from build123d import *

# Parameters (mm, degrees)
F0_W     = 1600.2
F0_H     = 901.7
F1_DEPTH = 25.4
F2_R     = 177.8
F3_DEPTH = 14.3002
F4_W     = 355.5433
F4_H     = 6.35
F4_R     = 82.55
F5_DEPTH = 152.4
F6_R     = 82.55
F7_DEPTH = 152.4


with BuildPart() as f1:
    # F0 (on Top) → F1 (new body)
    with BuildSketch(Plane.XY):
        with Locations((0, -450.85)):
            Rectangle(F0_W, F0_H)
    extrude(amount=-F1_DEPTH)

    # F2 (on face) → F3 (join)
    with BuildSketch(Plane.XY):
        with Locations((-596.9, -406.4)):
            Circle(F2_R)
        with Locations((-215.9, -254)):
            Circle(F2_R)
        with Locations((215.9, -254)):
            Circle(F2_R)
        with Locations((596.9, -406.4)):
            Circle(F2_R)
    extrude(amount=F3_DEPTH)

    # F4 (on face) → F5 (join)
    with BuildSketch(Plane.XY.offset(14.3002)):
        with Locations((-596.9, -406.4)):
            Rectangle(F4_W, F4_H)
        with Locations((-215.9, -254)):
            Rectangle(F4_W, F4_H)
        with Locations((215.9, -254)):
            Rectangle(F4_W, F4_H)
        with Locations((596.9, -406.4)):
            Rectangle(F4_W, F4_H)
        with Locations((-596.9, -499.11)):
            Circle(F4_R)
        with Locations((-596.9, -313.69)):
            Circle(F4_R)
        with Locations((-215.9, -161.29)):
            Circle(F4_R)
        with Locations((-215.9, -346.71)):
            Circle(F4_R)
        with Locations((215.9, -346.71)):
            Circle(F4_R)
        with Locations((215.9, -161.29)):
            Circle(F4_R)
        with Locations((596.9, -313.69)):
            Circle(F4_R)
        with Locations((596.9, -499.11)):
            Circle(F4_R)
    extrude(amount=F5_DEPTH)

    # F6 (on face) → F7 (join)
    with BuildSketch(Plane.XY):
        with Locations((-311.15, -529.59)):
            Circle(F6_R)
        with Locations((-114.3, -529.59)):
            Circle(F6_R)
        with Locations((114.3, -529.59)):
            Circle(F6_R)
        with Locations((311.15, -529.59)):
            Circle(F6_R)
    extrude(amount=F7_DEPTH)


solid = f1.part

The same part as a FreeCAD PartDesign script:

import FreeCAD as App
import Part
import Sketcher
from FreeCAD import Vector
Q = App.Units.Quantity

doc = App.newDocument("Part")
body = doc.addObject("PartDesign::Body", "Body")

# Sketch on XY plane
sketch1 = body.newObject("Sketcher::SketchObject", "Sketch")
sketch1.AttachmentSupport = (doc.getObject("XY_Plane"), [""])
sketch1.MapMode = "FlatFace"
sketch1.addGeometry(Part.LineSegment(Vector(-800, 0, 0), Vector(-800, -902, 0)), False)
sketch1.addGeometry(Part.LineSegment(Vector(-800, -902, 0), Vector(800, -902, 0)), False)
sketch1.addGeometry(Part.LineSegment(Vector(800, -902, 0), Vector(800, 0, 0)), False)
sketch1.addGeometry(Part.LineSegment(Vector(800, 0, 0), Vector(-800, 0, 0)), False)
sketch1.addConstraint(Sketcher.Constraint("Coincident", 0, 2, 1, 1))
sketch1.addConstraint(Sketcher.Constraint("Coincident", 1, 2, 2, 1))
sketch1.addConstraint(Sketcher.Constraint("Coincident", 2, 2, 3, 1))
sketch1.addConstraint(Sketcher.Constraint("Coincident", 3, 2, 0, 1))
sketch1.addConstraint(Sketcher.Constraint("Vertical", 0))
sketch1.addConstraint(Sketcher.Constraint("Horizontal", 1))
sketch1.addConstraint(Sketcher.Constraint("Vertical", 2))
sketch1.addConstraint(Sketcher.Constraint("Horizontal", 3))
sketch1.addConstraint(Sketcher.Constraint("Symmetric", 2, 2, 3, 2, -1, 1))
sketch1.addConstraint(Sketcher.Constraint("DistanceX", 1, 1, 1, 2, Q("63 in")))
sketch1.addConstraint(Sketcher.Constraint("DistanceY", 0, 2, 0, 1, Q("35.5 in")))
pad1 = body.newObject("PartDesign::Pad", "Pad")
pad1.Profile = sketch1
pad1.Length = Q("1 in")
pad1.Reversed = True

# Sketch on XY plane
sketch2 = body.newObject("Sketcher::SketchObject", "Sketch001")
sketch2.AttachmentSupport = (doc.getObject("XY_Plane"), [""])
sketch2.MapMode = "FlatFace"
sketch2.addGeometry(Part.Circle(Vector(-597, -406, 0), Vector(0, 0, 1), 178), False)
sketch2.addGeometry(Part.Circle(Vector(-216, -254, 0), Vector(0, 0, 1), 178), False)
sketch2.addGeometry(Part.Circle(Vector(216, -254, 0), Vector(0, 0, 1), 178), False)
sketch2.addGeometry(Part.Circle(Vector(597, -406, 0), Vector(0, 0, 1), 178), False)
sketch2.addConstraint(Sketcher.Constraint("Equal", 0, 1))
sketch2.addConstraint(Sketcher.Constraint("Equal", 1, 2))
sketch2.addConstraint(Sketcher.Constraint("Equal", 2, 3))
sketch2.addConstraint(Sketcher.Constraint("Symmetric", 1, 3, 2, 3, -2))
sketch2.addConstraint(Sketcher.Constraint("Symmetric", 0, 3, 3, 3, -2))
sketch2.addConstraint(Sketcher.Constraint("Diameter", 0, Q("14 in")))
sketch2.addConstraint(Sketcher.Constraint("DistanceY", 0, 3, -1, 1, Q("16 in")))
sketch2.addConstraint(Sketcher.Constraint("DistanceY", 1, 3, -1, 1, Q("10 in")))
sketch2.addConstraint(Sketcher.Constraint("DistanceX", 0, 3, 1, 3, Q("15 in")))
sketch2.addConstraint(Sketcher.Constraint("DistanceX", 1, 3, 2, 3, Q("17 in")))
pad2 = body.newObject("PartDesign::Pad", "Pad001")
pad2.Profile = sketch2
pad2.Length = Q("0.563 in")

# Sketch on XY plane
sketch3 = body.newObject("Sketcher::SketchObject", "Sketch002")
sketch3.AttachmentSupport = (doc.getObject("XY_Plane"), [""])
sketch3.MapMode = "FlatFace"
sketch3.AttachmentOffset = App.Placement(Vector(0, 0, 0.563 * 25.4), App.Rotation())
sketch3.addGeometry(Part.LineSegment(Vector(-775, -403, 0), Vector(-775, -410, 0)), False)
sketch3.addGeometry(Part.LineSegment(Vector(-775, -410, 0), Vector(-419, -410, 0)), False)
sketch3.addGeometry(Part.LineSegment(Vector(-419, -410, 0), Vector(-419, -403, 0)), False)
sketch3.addGeometry(Part.LineSegment(Vector(-419, -403, 0), Vector(-775, -403, 0)), False)
sketch3.addGeometry(Part.LineSegment(Vector(-394, -251, 0), Vector(-394, -257, 0)), False)
sketch3.addGeometry(Part.LineSegment(Vector(-394, -257, 0), Vector(-38, -257, 0)), False)
sketch3.addGeometry(Part.LineSegment(Vector(-38, -257, 0), Vector(-38, -251, 0)), False)
sketch3.addGeometry(Part.LineSegment(Vector(-38, -251, 0), Vector(-394, -251, 0)), False)
sketch3.addGeometry(Part.LineSegment(Vector(38, -251, 0), Vector(38, -257, 0)), False)
sketch3.addGeometry(Part.LineSegment(Vector(38, -257, 0), Vector(394, -257, 0)), False)
sketch3.addGeometry(Part.LineSegment(Vector(394, -257, 0), Vector(394, -251, 0)), False)
sketch3.addGeometry(Part.LineSegment(Vector(394, -251, 0), Vector(38, -251, 0)), False)
sketch3.addGeometry(Part.LineSegment(Vector(419, -403, 0), Vector(419, -410, 0)), False)
sketch3.addGeometry(Part.LineSegment(Vector(419, -410, 0), Vector(775, -410, 0)), False)
sketch3.addGeometry(Part.LineSegment(Vector(775, -410, 0), Vector(775, -403, 0)), False)
sketch3.addGeometry(Part.LineSegment(Vector(775, -403, 0), Vector(419, -403, 0)), False)
sketch3.addGeometry(Part.Circle(Vector(-597, -499, 0), Vector(0, 0, 1), 83), False)
sketch3.addGeometry(Part.Circle(Vector(-597, -314, 0), Vector(0, 0, 1), 83), False)
sketch3.addGeometry(Part.Circle(Vector(-216, -161, 0), Vector(0, 0, 1), 83), False)
sketch3.addGeometry(Part.Circle(Vector(-216, -347, 0), Vector(0, 0, 1), 83), False)
sketch3.addGeometry(Part.Circle(Vector(216, -347, 0), Vector(0, 0, 1), 83), False)
sketch3.addGeometry(Part.Circle(Vector(216, -161, 0), Vector(0, 0, 1), 83), False)
sketch3.addGeometry(Part.Circle(Vector(597, -314, 0), Vector(0, 0, 1), 83), False)
sketch3.addGeometry(Part.Circle(Vector(597, -499, 0), Vector(0, 0, 1), 83), False)
sketch3.addConstraint(Sketcher.Constraint("Coincident", 0, 2, 1, 1))
sketch3.addConstraint(Sketcher.Constraint("Coincident", 1, 2, 2, 1))
sketch3.addConstraint(Sketcher.Constraint("Coincident", 2, 2, 3, 1))
sketch3.addConstraint(Sketcher.Constraint("Coincident", 3, 2, 0, 1))
sketch3.addConstraint(Sketcher.Constraint("Coincident", 4, 2, 5, 1))
sketch3.addConstraint(Sketcher.Constraint("Coincident", 5, 2, 6, 1))
sketch3.addConstraint(Sketcher.Constraint("Coincident", 6, 2, 7, 1))
sketch3.addConstraint(Sketcher.Constraint("Coincident", 7, 2, 4, 1))
sketch3.addConstraint(Sketcher.Constraint("Coincident", 8, 2, 9, 1))
sketch3.addConstraint(Sketcher.Constraint("Coincident", 9, 2, 10, 1))
sketch3.addConstraint(Sketcher.Constraint("Coincident", 10, 2, 11, 1))
sketch3.addConstraint(Sketcher.Constraint("Coincident", 11, 2, 8, 1))
sketch3.addConstraint(Sketcher.Constraint("Coincident", 12, 2, 13, 1))
sketch3.addConstraint(Sketcher.Constraint("Coincident", 13, 2, 14, 1))
sketch3.addConstraint(Sketcher.Constraint("Coincident", 14, 2, 15, 1))
sketch3.addConstraint(Sketcher.Constraint("Coincident", 15, 2, 12, 1))
sketch3.addConstraint(Sketcher.Constraint("Vertical", 0))
sketch3.addConstraint(Sketcher.Constraint("Horizontal", 1))
sketch3.addConstraint(Sketcher.Constraint("Vertical", 2))
sketch3.addConstraint(Sketcher.Constraint("Horizontal", 3))
sketch3.addConstraint(Sketcher.Constraint("Vertical", 4))
sketch3.addConstraint(Sketcher.Constraint("Horizontal", 5))
sketch3.addConstraint(Sketcher.Constraint("Vertical", 6))
sketch3.addConstraint(Sketcher.Constraint("Horizontal", 7))
sketch3.addConstraint(Sketcher.Constraint("Vertical", 8))
sketch3.addConstraint(Sketcher.Constraint("Horizontal", 9))
sketch3.addConstraint(Sketcher.Constraint("Vertical", 10))
sketch3.addConstraint(Sketcher.Constraint("Horizontal", 11))
sketch3.addConstraint(Sketcher.Constraint("Vertical", 12))
sketch3.addConstraint(Sketcher.Constraint("Horizontal", 13))
sketch3.addConstraint(Sketcher.Constraint("Vertical", 14))
sketch3.addConstraint(Sketcher.Constraint("Horizontal", 15))
sketch3.addConstraint(Sketcher.Constraint("Equal", 16, 17))
sketch3.addConstraint(Sketcher.Constraint("Equal", 17, 18))
sketch3.addConstraint(Sketcher.Constraint("Equal", 18, 19))
sketch3.addConstraint(Sketcher.Constraint("Equal", 19, 20))
sketch3.addConstraint(Sketcher.Constraint("Equal", 20, 21))
sketch3.addConstraint(Sketcher.Constraint("Equal", 21, 22))
sketch3.addConstraint(Sketcher.Constraint("Equal", 22, 23))
sketch3.addConstraint(Sketcher.Constraint("Symmetric", 19, 3, 20, 3, -2))
sketch3.addConstraint(Sketcher.Constraint("Symmetric", 18, 3, 21, 3, -2))
sketch3.addConstraint(Sketcher.Constraint("Symmetric", 17, 3, 22, 3, -2))
sketch3.addConstraint(Sketcher.Constraint("Symmetric", 16, 3, 23, 3, -2))
sketch3.addConstraint(Sketcher.Constraint("Symmetric", 5, 2, 8, 2, -2))
sketch3.addConstraint(Sketcher.Constraint("Symmetric", 7, 2, 10, 2, -2))
sketch3.addConstraint(Sketcher.Constraint("Symmetric", 1, 2, 12, 2, -2))
sketch3.addConstraint(Sketcher.Constraint("Symmetric", 3, 2, 14, 2, -2))
sketch3.addConstraint(Sketcher.Constraint("Vertical", 16, 3, 17, 3))
sketch3.addConstraint(Sketcher.Constraint("Vertical", 18, 3, 19, 3))
sketch3.addConstraint(Sketcher.Constraint("Equal", 3, 5))
sketch3.addConstraint(Sketcher.Constraint("Equal", 2, 4))
sketch3.addConstraint(Sketcher.Constraint("Diameter", 16, Q("6.5 in")))
sketch3.addConstraint(Sketcher.Constraint("DistanceX", 17, 3, 18, 3, Q("15 in")))
sketch3.addConstraint(Sketcher.Constraint("DistanceY", 17, 3, 18, 3, Q("6 in")))
sketch3.addConstraint(Sketcher.Constraint("DistanceY", 16, 3, 19, 3, Q("6 in")))
sketch3.addConstraint(Sketcher.Constraint("DistanceX", 19, 3, 20, 3, Q("17 in")))
sketch3.addConstraint(Sketcher.Constraint("DistanceY", 1, 2, 4, 2, Q("6 in")))
sketch3.addConstraint(Sketcher.Constraint("DistanceX", 9, 2, 13, 2, Q("15 in")))
sketch3.addConstraint(Sketcher.Constraint("DistanceY", 0, 2, 0, 1, Q("0.25 in")))
sketch3.addConstraint(Sketcher.Constraint("DistanceY", 16, 3, 17, 3, Q("7.3 in")))
sketch3.addConstraint(Sketcher.Constraint("DistanceY", 16, 3, -1, 1, Q("19.65 in")))
sketch3.addConstraint(Sketcher.Constraint("DistanceY", 0, 2, -1, 1, Q("16.125 in")))
sketch3.addConstraint(Sketcher.Constraint("DistanceX", 1, 1, 1, 2, 355.5433))
sketch3.addConstraint(Sketcher.Constraint("DistanceX", 5, 2, 8, 2, 76.2567))
pad3 = body.newObject("PartDesign::Pad", "Pad002")
pad3.Profile = sketch3
pad3.Length = Q("6 in")

# Sketch on XY plane
sketch4 = body.newObject("Sketcher::SketchObject", "Sketch003")
sketch4.AttachmentSupport = (doc.getObject("XY_Plane"), [""])
sketch4.MapMode = "FlatFace"
sketch4.addGeometry(Part.Circle(Vector(-311, -530, 0), Vector(0, 0, 1), 83), False)
sketch4.addGeometry(Part.Circle(Vector(-114, -530, 0), Vector(0, 0, 1), 83), False)
sketch4.addGeometry(Part.Circle(Vector(114, -530, 0), Vector(0, 0, 1), 83), False)
sketch4.addGeometry(Part.Circle(Vector(311, -530, 0), Vector(0, 0, 1), 83), False)
sketch4.addConstraint(Sketcher.Constraint("Equal", 0, 1))
sketch4.addConstraint(Sketcher.Constraint("Equal", 1, 2))
sketch4.addConstraint(Sketcher.Constraint("Equal", 2, 3))
sketch4.addConstraint(Sketcher.Constraint("Symmetric", 1, 3, 2, 3, -2))
sketch4.addConstraint(Sketcher.Constraint("Symmetric", 0, 3, 3, 3, -2))
sketch4.addConstraint(Sketcher.Constraint("Horizontal", 0, 3, 1, 3))
sketch4.addConstraint(Sketcher.Constraint("Diameter", 0, Q("6.5 in")))
sketch4.addConstraint(Sketcher.Constraint("DistanceX", 1, 3, 2, 3, Q("9 in")))
sketch4.addConstraint(Sketcher.Constraint("DistanceX", 0, 3, 3, 3, Q("24.5 in")))
sketch4.addConstraint(Sketcher.Constraint("DistanceY", 0, 3, -1, 1, Q("20.85 in")))
pad4 = body.newObject("PartDesign::Pad", "Pad003")
pad4.Profile = sketch4
pad4.Length = Q("6 in")

doc.recompute()
